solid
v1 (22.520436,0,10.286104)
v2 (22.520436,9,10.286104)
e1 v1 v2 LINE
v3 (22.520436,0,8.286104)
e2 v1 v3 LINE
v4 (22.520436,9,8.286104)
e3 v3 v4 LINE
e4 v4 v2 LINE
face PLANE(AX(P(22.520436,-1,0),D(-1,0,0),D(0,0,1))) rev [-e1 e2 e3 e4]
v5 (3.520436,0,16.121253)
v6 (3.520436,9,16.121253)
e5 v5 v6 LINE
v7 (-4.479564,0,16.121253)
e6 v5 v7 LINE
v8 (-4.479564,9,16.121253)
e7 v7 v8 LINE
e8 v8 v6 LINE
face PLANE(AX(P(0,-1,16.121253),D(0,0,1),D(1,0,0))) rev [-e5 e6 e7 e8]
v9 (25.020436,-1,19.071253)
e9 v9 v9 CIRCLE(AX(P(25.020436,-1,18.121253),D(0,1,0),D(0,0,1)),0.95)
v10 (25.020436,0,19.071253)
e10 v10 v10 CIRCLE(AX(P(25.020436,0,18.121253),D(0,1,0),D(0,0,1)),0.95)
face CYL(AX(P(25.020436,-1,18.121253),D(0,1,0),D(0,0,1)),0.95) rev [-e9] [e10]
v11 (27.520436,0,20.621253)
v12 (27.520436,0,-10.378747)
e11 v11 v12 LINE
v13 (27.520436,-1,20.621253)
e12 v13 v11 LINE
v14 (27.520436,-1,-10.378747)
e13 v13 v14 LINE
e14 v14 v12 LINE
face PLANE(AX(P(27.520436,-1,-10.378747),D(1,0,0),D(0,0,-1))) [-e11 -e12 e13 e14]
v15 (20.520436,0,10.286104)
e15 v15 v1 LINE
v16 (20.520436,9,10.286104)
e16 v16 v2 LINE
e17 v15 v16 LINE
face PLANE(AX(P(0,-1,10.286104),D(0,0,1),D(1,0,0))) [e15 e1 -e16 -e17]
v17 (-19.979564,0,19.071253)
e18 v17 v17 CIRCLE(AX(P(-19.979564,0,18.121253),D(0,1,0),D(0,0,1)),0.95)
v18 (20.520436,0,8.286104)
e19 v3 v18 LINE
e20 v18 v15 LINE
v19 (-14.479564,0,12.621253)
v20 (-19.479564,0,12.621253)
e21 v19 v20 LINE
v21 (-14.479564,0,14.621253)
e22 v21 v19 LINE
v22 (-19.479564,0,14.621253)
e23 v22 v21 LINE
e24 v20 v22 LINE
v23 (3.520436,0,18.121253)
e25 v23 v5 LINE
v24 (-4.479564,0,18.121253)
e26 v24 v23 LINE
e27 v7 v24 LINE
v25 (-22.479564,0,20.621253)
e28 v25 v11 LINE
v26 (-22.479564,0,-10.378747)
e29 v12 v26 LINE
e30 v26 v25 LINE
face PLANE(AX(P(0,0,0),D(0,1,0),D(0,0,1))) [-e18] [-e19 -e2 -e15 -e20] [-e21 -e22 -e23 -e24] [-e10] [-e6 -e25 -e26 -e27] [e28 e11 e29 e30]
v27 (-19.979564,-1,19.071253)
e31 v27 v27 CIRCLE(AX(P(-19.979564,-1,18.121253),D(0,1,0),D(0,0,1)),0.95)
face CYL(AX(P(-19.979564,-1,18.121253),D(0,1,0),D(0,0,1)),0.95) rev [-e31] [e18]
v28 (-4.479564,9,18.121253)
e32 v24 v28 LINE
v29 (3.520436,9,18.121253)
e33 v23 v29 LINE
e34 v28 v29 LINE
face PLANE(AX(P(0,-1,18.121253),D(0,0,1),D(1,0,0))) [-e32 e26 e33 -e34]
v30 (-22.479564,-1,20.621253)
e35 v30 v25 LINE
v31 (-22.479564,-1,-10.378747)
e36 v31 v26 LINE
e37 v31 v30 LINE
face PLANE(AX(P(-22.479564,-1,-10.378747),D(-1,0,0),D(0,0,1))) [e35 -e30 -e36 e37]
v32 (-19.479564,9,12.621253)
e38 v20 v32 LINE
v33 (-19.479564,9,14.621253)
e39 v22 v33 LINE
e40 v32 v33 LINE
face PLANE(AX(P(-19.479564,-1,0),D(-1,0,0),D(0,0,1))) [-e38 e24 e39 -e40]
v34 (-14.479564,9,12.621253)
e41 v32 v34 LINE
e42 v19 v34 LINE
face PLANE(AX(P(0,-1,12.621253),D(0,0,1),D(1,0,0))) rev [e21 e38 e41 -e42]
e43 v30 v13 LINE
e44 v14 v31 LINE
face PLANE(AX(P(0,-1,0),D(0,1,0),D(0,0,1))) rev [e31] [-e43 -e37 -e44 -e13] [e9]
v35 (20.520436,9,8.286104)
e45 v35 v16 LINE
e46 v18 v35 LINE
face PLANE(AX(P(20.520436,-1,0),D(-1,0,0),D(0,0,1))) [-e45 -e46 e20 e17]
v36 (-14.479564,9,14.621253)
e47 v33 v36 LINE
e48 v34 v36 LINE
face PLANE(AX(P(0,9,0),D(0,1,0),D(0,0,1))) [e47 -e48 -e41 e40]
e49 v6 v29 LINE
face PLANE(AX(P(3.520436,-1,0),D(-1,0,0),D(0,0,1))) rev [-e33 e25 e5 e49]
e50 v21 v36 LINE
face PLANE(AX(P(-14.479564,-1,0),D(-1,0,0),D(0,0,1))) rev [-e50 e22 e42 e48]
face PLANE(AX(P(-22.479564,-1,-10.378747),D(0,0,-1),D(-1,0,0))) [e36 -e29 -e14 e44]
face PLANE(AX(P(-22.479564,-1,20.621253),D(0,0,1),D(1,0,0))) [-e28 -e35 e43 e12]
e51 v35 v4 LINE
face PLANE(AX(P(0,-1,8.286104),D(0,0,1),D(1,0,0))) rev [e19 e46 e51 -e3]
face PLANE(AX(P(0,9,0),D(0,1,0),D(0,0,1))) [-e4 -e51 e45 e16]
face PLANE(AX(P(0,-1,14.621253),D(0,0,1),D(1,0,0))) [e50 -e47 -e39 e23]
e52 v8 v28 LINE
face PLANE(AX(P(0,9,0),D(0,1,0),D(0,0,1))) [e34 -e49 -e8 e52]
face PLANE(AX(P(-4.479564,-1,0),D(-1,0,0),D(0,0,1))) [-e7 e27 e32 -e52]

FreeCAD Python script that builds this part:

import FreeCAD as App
import Part
import Sketcher

V = App.Vector
Q = App.Units.Quantity

doc = App.newDocument("Part")
body = doc.addObject("PartDesign::Body", "Body")

# Sketch on XZ plane
sketch1 = body.newObject("Sketcher::SketchObject", "Sketch")
sketch1.AttachmentSupport = (doc.getObject("XZ_Plane"), [""])
sketch1.MapMode = "FlatFace"
sketch1.addGeometry([
    Part.LineSegment(V(-4.479564, 16.121253, 0), V(-4.479564, 18.121253, 0)),
    Part.LineSegment(V(-4.479564, 18.121253, 0), V(3.520436, 18.121253, 0)),
    Part.LineSegment(V(3.520436, 18.121253, 0), V(3.520436, 16.121253, 0)),
    Part.LineSegment(V(3.520436, 16.121253, 0), V(-4.479564, 16.121253, 0)),
], False)
sketch1.addConstraint([
    Sketcher.Constraint("Coincident", 0, 2, 1, 1),
    Sketcher.Constraint("Coincident", 1, 2, 2, 1),
    Sketcher.Constraint("Coincident", 2, 2, 3, 1),
    Sketcher.Constraint("Coincident", 3, 2, 0, 1),
    Sketcher.Constraint("Vertical", 0),
    Sketcher.Constraint("Horizontal", 1),
    Sketcher.Constraint("Vertical", 2),
    Sketcher.Constraint("Horizontal", 3),
    Sketcher.Constraint("DistanceX", 1, 1, 1, 2, Q("8 mm")),
    Sketcher.Constraint("DistanceY", 0, 1, 0, 2, Q("2 mm")),
    Sketcher.Constraint("DistanceX", 0, 2, -1, 1, Q("4.479564 mm")),
    Sketcher.Constraint("DistanceY", -1, 1, 0, 2, Q("18.121253 mm")),
])
pad1 = body.newObject("PartDesign::Pad", "Pad")
pad1.Profile = sketch1
pad1.Type = "TwoLengths"
pad1.Length = 9
pad1.Length2 = 1
pad1.Reversed = True
body2 = doc.addObject("PartDesign::Body", "Body001")

# Sketch on XZ plane
sketch2 = body2.newObject("Sketcher::SketchObject", "Sketch001")
sketch2.AttachmentSupport = (doc.getObject("XZ_Plane001"), [""])
sketch2.MapMode = "FlatFace"
sketch2.addGeometry([
    Part.LineSegment(V(-19.479564, 12.621253, 0), V(-19.479564, 14.621253, 0)),
    Part.LineSegment(V(-19.479564, 14.621253, 0), V(-14.479564, 14.621253, 0)),
    Part.LineSegment(V(-14.479564, 14.621253, 0), V(-14.479564, 12.621253, 0)),
    Part.LineSegment(V(-14.479564, 12.621253, 0), V(-19.479564, 12.621253, 0)),
], False)
sketch2.addConstraint([
    Sketcher.Constraint("Coincident", 0, 2, 1, 1),
    Sketcher.Constraint("Coincident", 1, 2, 2, 1),
    Sketcher.Constraint("Coincident", 2, 2, 3, 1),
    Sketcher.Constraint("Coincident", 3, 2, 0, 1),
    Sketcher.Constraint("Vertical", 0),
    Sketcher.Constraint("Horizontal", 1),
    Sketcher.Constraint("Vertical", 2),
    Sketcher.Constraint("Horizontal", 3),
    Sketcher.Constraint("DistanceX", 1, 1, 1, 2, Q("5 mm")),
    Sketcher.Constraint("DistanceY", 0, 1, 0, 2, Q("2 mm")),
    Sketcher.Constraint("DistanceX", 0, 2, -1, 1, Q("19.479564 mm")),
    Sketcher.Constraint("DistanceY", -1, 1, 0, 2, Q("14.621253 mm")),
])
pad2 = body2.newObject("PartDesign::Pad", "Pad001")
pad2.Profile = sketch2
pad2.Type = "TwoLengths"
pad2.Length = 9
pad2.Length2 = 1
pad2.Reversed = True
body3 = doc.addObject("PartDesign::Body", "Body002")

# Sketch on XZ plane
sketch3 = body3.newObject("Sketcher::SketchObject", "Sketch002")
sketch3.AttachmentSupport = (doc.getObject("XZ_Plane002"), [""])
sketch3.MapMode = "FlatFace"
sketch3.addGeometry([
    Part.LineSegment(V(20.520436, 8.286104, 0), V(20.520436, 10.286104, 0)),
    Part.LineSegment(V(20.520436, 10.286104, 0), V(22.520436, 10.286104, 0)),
    Part.LineSegment(V(22.520436, 10.286104, 0), V(22.520436, 8.286104, 0)),
    Part.LineSegment(V(22.520436, 8.286104, 0), V(20.520436, 8.286104, 0)),
], False)
sketch3.addConstraint([
    Sketcher.Constraint("Coincident", 0, 2, 1, 1),
    Sketcher.Constraint("Coincident", 1, 2, 2, 1),
    Sketcher.Constraint("Coincident", 2, 2, 3, 1),
    Sketcher.Constraint("Coincident", 3, 2, 0, 1),
    Sketcher.Constraint("Vertical", 0),
    Sketcher.Constraint("Horizontal", 1),
    Sketcher.Constraint("Vertical", 2),
    Sketcher.Constraint("Horizontal", 3),
    Sketcher.Constraint("Equal", 3, 0),
    Sketcher.Constraint("DistanceX", 1, 1, 1, 2, Q("2 mm")),
    Sketcher.Constraint("DistanceX", -1, 1, 0, 2, Q("20.520436 mm")),
    Sketcher.Constraint("DistanceY", -1, 1, 0, 2, Q("10.286104 mm")),
])
pad3 = body3.newObject("PartDesign::Pad", "Pad002")
pad3.Profile = sketch3
pad3.Type = "TwoLengths"
pad3.Length = 9
pad3.Length2 = 1
pad3.Reversed = True
body.AllowCompound = True
doc.recompute()

boolean = body.newObject("PartDesign::Boolean", "Boolean")
boolean.Type = "Fuse"
boolean.addObjects([body2])
doc.recompute()

boolean2 = body.newObject("PartDesign::Boolean", "Boolean001")
boolean2.Type = "Fuse"
boolean2.addObjects([body3])

# Sketch on XZ plane
sketch4 = body.newObject("Sketcher::SketchObject", "Sketch003")
sketch4.AttachmentSupport = (doc.getObject("XZ_Plane"), [""])
sketch4.MapMode = "FlatFace"
sketch4.addGeometry([
    Part.LineSegment(V(-22.479564, -10.378747, 0), V(-22.479564, 20.621253, 0)),  # 0
    Part.LineSegment(V(-22.479564, 20.621253, 0), V(27.520436, 20.621253, 0)),  # 1
    Part.LineSegment(V(27.520436, 20.621253, 0), V(27.520436, -10.378747, 0)),  # 2
    Part.LineSegment(V(27.520436, -10.378747, 0), V(-22.479564, -10.378747, 0)),  # 3
    Part.Circle(V(-19.979564, 18.121253, 0), V(0, 0, 1), 0.95),  # 4
    Part.LineSegment(V(3.520436, 18.121253, 0), V(-4.479564, 18.121253, 0)),  # 5
    Part.LineSegment(V(-4.479564, 18.121253, 0), V(-4.479564, 16.121253, 0)),  # 6
    Part.LineSegment(V(-4.479564, 16.121253, 0), V(3.520436, 16.121253, 0)),  # 7
    Part.LineSegment(V(3.520436, 16.121253, 0), V(3.520436, 18.121253, 0)),  # 8
    Part.Circle(V(25.020436, 18.121253, 0), V(0, 0, 1), 0.95),  # 9
    Part.LineSegment(V(-14.479564, 14.621253, 0), V(-19.479564, 14.621253, 0)),  # 10
    Part.LineSegment(V(-19.479564, 14.621253, 0), V(-19.479564, 12.621253, 0)),  # 11
    Part.LineSegment(V(-19.479564, 12.621253, 0), V(-14.479564, 12.621253, 0)),  # 12
    Part.LineSegment(V(-14.479564, 12.621253, 0), V(-14.479564, 14.621253, 0)),  # 13
    Part.LineSegment(V(22.520436, 10.286104, 0), V(20.520436, 10.286104, 0)),  # 14
    Part.LineSegment(V(20.520436, 10.286104, 0), V(20.520436, 8.286104, 0)),  # 15
    Part.LineSegment(V(20.520436, 8.286104, 0), V(22.520436, 8.286104, 0)),  # 16
    Part.LineSegment(V(22.520436, 8.286104, 0), V(22.520436, 10.286104, 0)),  # 17
], False)
sketch4.addConstraint([
    Sketcher.Constraint("Coincident", 0, 2, 1, 1),
    Sketcher.Constraint("Coincident", 1, 2, 2, 1),
    Sketcher.Constraint("Coincident", 2, 2, 3, 1),
    Sketcher.Constraint("Coincident", 3, 2, 0, 1),
    Sketcher.Constraint("Coincident", 5, 2, 6, 1),
    Sketcher.Constraint("Coincident", 6, 2, 7, 1),
    Sketcher.Constraint("Coincident", 7, 2, 8, 1),
    Sketcher.Constraint("Coincident", 8, 2, 5, 1),
    Sketcher.Constraint("Coincident", 10, 2, 11, 1),
    Sketcher.Constraint("Coincident", 11, 2, 12, 1),
    Sketcher.Constraint("Coincident", 12, 2, 13, 1),
    Sketcher.Constraint("Coincident", 13, 2, 10, 1),
    Sketcher.Constraint("Coincident", 14, 2, 15, 1),
    Sketcher.Constraint("Coincident", 15, 2, 16, 1),
    Sketcher.Constraint("Coincident", 16, 2, 17, 1),
    Sketcher.Constraint("Coincident", 17, 2, 14, 1),
    Sketcher.Constraint("Vertical", 0),
    Sketcher.Constraint("Horizontal", 1),
    Sketcher.Constraint("Vertical", 2),
    Sketcher.Constraint("Horizontal", 3),
    Sketcher.Constraint("Horizontal", 5),
    Sketcher.Constraint("Vertical", 6),
    Sketcher.Constraint("Horizontal", 7),
    Sketcher.Constraint("Vertical", 8),
    Sketcher.Constraint("Horizontal", 10),
    Sketcher.Constraint("Vertical", 11),
    Sketcher.Constraint("Horizontal", 12),
    Sketcher.Constraint("Vertical", 13),
    Sketcher.Constraint("Horizontal", 14),
    Sketcher.Constraint("Vertical", 15),
    Sketcher.Constraint("Horizontal", 16),
    Sketcher.Constraint("Vertical", 17),
    Sketcher.Constraint("Equal", 4, 9),
    Sketcher.Constraint("Horizontal", 4, 3, 9, 3),
    Sketcher.Constraint("Horizontal", 9, 3, 5, 2),
    Sketcher.Constraint("Equal", 16, 6),
    Sketcher.Constraint("Equal", 8, 11),
    Sketcher.Constraint("Equal", 13, 15),
    Sketcher.Constraint("Diameter", 4, Q("1.9 mm")),
    Sketcher.Constraint("DistanceX", 1, 1, 1, 2, Q("50 mm")),
    Sketcher.Constraint("DistanceX", 5, 2, 5, 1, Q("8 mm")),
    Sketcher.Constraint("DistanceX", 10, 2, 10, 1, Q("5 mm")),
    Sketcher.Constraint("DistanceX", 14, 2, 14, 1, Q("2 mm")),
    Sketcher.Constraint("DistanceY", 0, 1, 0, 2, Q("31 mm")),
    Sketcher.Constraint("DistanceX", 4, 3, 9, 3, Q("45 mm")),
    Sketcher.Constraint("DistanceX", 0, 2, 5, 2, Q("18 mm")),
    Sketcher.Constraint("DistanceX", 0, 2, 10, 2, Q("3 mm")),
    Sketcher.Constraint("DistanceY", 10, 2, 0, 2, Q("6 mm")),
    Sketcher.Constraint("DistanceX", 14, 2, 1, 2, Q("7 mm")),
    Sketcher.Constraint("DistanceX", 0, 2, 4, 3, Q("2.5 mm")),
    Sketcher.Constraint("DistanceY", 4, 3, 0, 2, Q("2.5 mm")),
    Sketcher.Constraint("DistanceY", 14, 2, 9, 3, Q("7.83515 mm")),
    Sketcher.Constraint("DistanceX", 4, 3, -1, 1, Q("19.979564 mm")),
    Sketcher.Constraint("DistanceY", -1, 1, 4, 3, Q("18.121253 mm")),
])
pad4 = body.newObject("PartDesign::Pad", "Pad003")
pad4.Profile = sketch4
pad4.Length = 1

doc.recompute()
